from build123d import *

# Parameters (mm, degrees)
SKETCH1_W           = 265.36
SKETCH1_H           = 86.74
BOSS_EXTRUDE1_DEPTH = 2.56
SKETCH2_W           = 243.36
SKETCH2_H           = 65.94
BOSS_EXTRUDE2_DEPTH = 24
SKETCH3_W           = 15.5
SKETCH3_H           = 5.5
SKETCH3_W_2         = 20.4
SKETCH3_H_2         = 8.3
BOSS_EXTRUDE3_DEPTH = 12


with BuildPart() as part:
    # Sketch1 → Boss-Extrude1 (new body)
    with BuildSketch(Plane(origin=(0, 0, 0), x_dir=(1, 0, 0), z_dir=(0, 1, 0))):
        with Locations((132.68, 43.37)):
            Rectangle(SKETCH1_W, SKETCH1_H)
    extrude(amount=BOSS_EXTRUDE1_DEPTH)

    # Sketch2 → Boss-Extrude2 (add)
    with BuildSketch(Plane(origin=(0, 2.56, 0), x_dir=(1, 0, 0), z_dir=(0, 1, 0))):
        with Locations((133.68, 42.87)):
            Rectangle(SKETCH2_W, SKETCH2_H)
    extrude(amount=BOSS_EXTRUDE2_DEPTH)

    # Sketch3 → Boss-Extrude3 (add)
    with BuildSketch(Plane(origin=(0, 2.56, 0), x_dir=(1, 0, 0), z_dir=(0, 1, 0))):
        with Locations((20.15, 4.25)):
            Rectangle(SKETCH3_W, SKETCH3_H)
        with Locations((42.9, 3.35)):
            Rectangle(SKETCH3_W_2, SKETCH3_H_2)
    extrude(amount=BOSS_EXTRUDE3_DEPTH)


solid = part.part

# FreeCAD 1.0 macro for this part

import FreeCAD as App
import Part
import Sketcher

V = App.Vector


def add_polygon(sketch, points):
    """Adds a closed chain of lines whose ends are joined by coincident constraints."""
    first, n = sketch.GeometryCount, len(points)
    for a, b in zip(points, points[1:] + points[:1]):
        sketch.addGeometry(Part.LineSegment(App.Vector(*a, 0), App.Vector(*b, 0)), False)
    for i in range(n):
        sketch.addConstraint(Sketcher.Constraint("Coincident", first + i, 2, first + (i + 1) % n, 1))

doc = App.newDocument("Part")
body = doc.addObject("PartDesign::Body", "Body")

# Sketch on XZ plane
sketch1 = body.newObject("Sketcher::SketchObject", "Sketch")
sketch1.AttachmentSupport = (doc.getObject("XZ_Plane"), [""])
sketch1.MapMode = "FlatFace"
add_polygon(sketch1, [(0, -87), (0, 0), (265, 0), (265, -87)])  # lines 0-3
sketch1.addConstraint([
    Sketcher.Constraint("Vertical", 0),
    Sketcher.Constraint("Horizontal", 1),
    Sketcher.Constraint("Vertical", 2),
    Sketcher.Constraint("Horizontal", 3),
    Sketcher.Constraint("Coincident", 0, 2, -1, 1),
    Sketcher.Constraint("DistanceX", 1, 1, 1, 2, 265.36),
    Sketcher.Constraint("DistanceY", 0, 1, 0, 2, 86.74),
])
pad1 = body.newObject("PartDesign::Pad", "Pad")
pad1.Profile = sketch1
pad1.Length = 2.56
pad1.Reversed = True

# Sketch on XZ plane
sketch2 = body.newObject("Sketcher::SketchObject", "Sketch001")
sketch2.AttachmentSupport = (doc.getObject("XZ_Plane"), [""])
sketch2.MapMode = "FlatFace"
sketch2.AttachmentOffset = App.Placement(V(0, 0, -2.56), App.Rotation())
add_polygon(sketch2, [(12, -76), (12, -10), (255, -10), (255, -76)])  # lines 0-3
sketch2.addConstraint([
    Sketcher.Constraint("Vertical", 0),
    Sketcher.Constraint("Horizontal", 1),
    Sketcher.Constraint("Vertical", 2),
    Sketcher.Constraint("Horizontal", 3),
    Sketcher.Constraint("DistanceX", -1, 1, 0, 2, 12.0),
    Sketcher.Constraint("DistanceX", 1, 1, 1, 2, 243.36),
    Sketcher.Constraint("DistanceY", 0, 1, 0, 2, 65.94),
    Sketcher.Constraint("DistanceY", 0, 2, -1, 1, 9.9),
])
pad2 = body.newObject("PartDesign::Pad", "Pad001")
pad2.Profile = sketch2
pad2.Length = 24
pad2.Reversed = True

# Sketch on XZ plane
sketch3 = body.newObject("Sketcher::SketchObject", "Sketch002")
sketch3.AttachmentSupport = (doc.getObject("XZ_Plane"), [""])
sketch3.MapMode = "FlatFace"
sketch3.AttachmentOffset = App.Placement(V(0, 0, -2.56), App.Rotation())
add_polygon(sketch3, [(12, -7), (12, -2), (28, -2), (28, -7)])  # lines 0-3
add_polygon(sketch3, [(33, -8), (33, 1), (53, 1), (53, -8)])  # lines 4-7
sketch3.addConstraint([
    Sketcher.Constraint("Vertical", 0),
    Sketcher.Constraint("Horizontal", 1),
    Sketcher.Constraint("Vertical", 2),
    Sketcher.Constraint("Horizontal", 3),
    Sketcher.Constraint("Vertical", 4),
    Sketcher.Constraint("Horizontal", 5),
    Sketcher.Constraint("Vertical", 6),
    Sketcher.Constraint("Horizontal", 7),
    Sketcher.Constraint("DistanceX", 1, 1, 1, 2, 15.5),
    Sketcher.Constraint("DistanceX", 5, 1, 5, 2, 20.4),
    Sketcher.Constraint("DistanceY", 0, 1, 0, 2, 5.5),
    Sketcher.Constraint("DistanceY", 4, 1, 4, 2, 8.3),
    Sketcher.Constraint("DistanceY", 2, 2, -1, 1, 7.0),
    Sketcher.Constraint("DistanceY", 6, 2, 1, 2, 6.0),
    Sketcher.Constraint("DistanceX", -1, 1, 0, 2, 12.4),
    Sketcher.Constraint("DistanceX", -1, 1, 4, 2, 32.7),
])
pad3 = body.newObject("PartDesign::Pad", "Pad002")
pad3.Profile = sketch3
pad3.Length = 12
pad3.Reversed = True

doc.recompute()
